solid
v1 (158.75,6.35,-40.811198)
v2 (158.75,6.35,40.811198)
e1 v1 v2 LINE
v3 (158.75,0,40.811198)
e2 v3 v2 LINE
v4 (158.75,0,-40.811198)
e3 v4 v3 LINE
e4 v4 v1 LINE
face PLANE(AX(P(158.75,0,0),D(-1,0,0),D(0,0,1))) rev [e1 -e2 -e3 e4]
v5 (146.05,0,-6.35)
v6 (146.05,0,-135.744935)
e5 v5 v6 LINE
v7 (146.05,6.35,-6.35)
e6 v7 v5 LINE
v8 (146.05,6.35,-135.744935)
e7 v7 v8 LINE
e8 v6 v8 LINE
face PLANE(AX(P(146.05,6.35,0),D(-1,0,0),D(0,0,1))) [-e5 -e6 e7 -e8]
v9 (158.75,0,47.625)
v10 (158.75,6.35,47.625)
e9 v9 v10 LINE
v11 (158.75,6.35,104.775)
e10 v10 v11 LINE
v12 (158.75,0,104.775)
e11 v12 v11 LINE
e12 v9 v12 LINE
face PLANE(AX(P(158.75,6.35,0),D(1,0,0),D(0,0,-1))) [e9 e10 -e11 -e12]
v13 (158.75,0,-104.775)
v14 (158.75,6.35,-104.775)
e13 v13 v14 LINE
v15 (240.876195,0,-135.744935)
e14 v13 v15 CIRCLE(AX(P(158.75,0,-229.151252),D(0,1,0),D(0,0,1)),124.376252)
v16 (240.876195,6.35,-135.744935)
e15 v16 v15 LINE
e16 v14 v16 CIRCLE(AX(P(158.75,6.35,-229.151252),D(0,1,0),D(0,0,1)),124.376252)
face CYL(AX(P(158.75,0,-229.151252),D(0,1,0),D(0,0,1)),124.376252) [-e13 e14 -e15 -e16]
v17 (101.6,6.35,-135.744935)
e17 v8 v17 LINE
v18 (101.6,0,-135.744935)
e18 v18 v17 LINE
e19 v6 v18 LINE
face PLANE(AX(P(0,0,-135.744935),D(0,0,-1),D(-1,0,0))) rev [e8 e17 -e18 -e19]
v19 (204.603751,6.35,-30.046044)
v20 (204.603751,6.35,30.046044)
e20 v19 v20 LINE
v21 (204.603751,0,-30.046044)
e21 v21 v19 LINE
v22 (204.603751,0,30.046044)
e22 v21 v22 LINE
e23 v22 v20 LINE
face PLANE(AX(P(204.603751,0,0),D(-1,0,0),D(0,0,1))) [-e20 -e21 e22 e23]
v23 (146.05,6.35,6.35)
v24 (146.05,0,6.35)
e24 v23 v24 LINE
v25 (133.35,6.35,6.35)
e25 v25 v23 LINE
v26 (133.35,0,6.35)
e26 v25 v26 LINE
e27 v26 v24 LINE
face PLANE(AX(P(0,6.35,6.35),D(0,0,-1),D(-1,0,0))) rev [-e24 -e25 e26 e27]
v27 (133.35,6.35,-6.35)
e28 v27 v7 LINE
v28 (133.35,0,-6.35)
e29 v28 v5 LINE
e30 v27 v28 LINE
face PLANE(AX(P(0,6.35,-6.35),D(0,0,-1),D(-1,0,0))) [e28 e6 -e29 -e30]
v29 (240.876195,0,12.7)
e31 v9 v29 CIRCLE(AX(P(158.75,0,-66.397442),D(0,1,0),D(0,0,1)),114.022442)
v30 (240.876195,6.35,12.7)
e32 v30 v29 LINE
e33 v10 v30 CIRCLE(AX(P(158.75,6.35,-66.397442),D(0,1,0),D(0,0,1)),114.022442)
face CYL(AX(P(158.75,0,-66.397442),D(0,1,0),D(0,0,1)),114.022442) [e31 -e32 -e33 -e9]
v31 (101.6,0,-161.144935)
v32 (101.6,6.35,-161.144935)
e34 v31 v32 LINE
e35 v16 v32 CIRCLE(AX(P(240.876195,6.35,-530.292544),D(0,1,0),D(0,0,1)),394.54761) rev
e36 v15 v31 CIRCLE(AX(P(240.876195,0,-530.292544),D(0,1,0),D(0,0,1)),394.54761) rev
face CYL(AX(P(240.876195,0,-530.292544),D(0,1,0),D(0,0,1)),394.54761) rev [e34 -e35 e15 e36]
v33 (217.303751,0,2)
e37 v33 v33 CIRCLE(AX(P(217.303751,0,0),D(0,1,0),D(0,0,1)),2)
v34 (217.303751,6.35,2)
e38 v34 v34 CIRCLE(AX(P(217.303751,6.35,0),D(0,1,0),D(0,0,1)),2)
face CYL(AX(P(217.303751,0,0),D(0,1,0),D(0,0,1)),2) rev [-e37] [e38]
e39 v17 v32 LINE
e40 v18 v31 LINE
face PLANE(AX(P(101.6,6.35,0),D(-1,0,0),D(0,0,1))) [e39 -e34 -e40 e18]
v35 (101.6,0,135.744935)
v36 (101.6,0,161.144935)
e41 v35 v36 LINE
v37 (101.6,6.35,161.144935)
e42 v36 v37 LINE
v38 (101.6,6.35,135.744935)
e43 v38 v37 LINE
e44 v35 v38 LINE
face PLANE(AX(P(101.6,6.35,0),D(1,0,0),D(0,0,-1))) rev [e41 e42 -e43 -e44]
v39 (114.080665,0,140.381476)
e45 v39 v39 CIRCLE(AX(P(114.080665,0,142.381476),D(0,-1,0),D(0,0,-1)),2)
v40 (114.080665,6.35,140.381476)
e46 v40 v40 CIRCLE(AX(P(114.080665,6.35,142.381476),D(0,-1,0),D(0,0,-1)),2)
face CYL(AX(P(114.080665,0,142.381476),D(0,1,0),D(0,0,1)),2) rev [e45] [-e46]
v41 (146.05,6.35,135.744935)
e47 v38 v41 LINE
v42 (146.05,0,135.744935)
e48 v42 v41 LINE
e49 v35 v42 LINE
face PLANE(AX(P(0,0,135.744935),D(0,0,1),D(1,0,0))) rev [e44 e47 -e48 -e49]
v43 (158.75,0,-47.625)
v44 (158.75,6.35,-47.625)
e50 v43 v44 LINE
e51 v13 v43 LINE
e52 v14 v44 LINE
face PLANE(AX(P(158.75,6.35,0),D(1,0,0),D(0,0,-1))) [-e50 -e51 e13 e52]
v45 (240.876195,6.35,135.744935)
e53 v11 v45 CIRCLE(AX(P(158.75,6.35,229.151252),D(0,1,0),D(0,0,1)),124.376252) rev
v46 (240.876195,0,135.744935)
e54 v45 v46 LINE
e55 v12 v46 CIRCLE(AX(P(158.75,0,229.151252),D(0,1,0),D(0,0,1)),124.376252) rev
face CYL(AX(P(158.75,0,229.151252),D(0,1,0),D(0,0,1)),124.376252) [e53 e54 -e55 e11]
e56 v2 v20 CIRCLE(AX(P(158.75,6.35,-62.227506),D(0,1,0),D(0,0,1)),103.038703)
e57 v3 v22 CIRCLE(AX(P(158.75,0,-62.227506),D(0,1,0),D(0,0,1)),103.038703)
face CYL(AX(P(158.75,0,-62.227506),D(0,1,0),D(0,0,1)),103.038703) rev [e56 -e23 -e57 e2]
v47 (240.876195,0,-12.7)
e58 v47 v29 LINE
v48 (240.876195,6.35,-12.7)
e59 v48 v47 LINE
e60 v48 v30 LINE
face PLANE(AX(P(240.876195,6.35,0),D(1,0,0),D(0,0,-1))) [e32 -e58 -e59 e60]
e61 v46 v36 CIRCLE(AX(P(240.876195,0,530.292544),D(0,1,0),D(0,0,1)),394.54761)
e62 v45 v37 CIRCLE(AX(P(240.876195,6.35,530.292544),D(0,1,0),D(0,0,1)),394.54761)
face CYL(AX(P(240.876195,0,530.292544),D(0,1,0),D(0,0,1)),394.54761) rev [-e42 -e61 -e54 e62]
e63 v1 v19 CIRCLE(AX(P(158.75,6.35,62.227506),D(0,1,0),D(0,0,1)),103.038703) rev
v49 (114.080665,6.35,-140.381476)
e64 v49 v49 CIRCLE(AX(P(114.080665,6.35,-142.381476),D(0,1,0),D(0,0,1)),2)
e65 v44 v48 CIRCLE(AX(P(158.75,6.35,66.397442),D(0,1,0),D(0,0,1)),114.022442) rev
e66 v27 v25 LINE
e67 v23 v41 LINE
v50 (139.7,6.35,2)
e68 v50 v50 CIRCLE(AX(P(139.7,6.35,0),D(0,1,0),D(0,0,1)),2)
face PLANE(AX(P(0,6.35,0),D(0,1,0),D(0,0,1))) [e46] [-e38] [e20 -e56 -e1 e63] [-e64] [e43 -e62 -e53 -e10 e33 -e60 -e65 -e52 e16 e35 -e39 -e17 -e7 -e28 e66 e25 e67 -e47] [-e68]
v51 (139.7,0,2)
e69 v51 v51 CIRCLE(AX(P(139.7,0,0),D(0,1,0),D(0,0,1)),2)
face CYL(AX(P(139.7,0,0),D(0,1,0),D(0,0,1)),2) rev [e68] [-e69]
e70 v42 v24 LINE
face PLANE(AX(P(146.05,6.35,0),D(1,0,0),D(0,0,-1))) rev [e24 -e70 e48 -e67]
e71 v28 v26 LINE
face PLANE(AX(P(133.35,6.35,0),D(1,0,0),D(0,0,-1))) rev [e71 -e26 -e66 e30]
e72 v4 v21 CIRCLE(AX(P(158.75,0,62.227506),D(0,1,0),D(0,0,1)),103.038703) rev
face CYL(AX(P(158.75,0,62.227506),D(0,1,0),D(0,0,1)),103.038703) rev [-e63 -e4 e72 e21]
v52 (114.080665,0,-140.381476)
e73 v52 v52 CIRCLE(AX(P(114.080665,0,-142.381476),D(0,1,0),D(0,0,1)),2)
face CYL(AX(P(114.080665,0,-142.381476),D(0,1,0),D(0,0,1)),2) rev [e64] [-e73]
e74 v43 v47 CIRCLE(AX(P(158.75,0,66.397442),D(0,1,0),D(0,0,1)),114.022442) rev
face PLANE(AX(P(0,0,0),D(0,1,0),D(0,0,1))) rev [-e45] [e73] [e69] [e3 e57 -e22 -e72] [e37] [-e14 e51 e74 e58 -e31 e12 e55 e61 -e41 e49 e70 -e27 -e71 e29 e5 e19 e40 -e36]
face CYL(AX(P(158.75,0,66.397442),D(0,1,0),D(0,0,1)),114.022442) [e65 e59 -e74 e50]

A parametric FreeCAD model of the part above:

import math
import FreeCAD as App
import Part
import Sketcher

V = App.Vector
Q = App.Units.Quantity


def add_polygon(sketch, points):
    """Adds a closed chain of lines whose ends are joined by coincident constraints."""
    first, n = sketch.GeometryCount, len(points)
    for a, b in zip(points, points[1:] + points[:1]):
        sketch.addGeometry(Part.LineSegment(App.Vector(*a, 0), App.Vector(*b, 0)), False)
    for i in range(n):
        sketch.addConstraint(Sketcher.Constraint("Coincident", first + i, 2, first + (i + 1) % n, 1))

doc = App.newDocument("Part")
body = doc.addObject("PartDesign::Body", "Body")
body.AllowCompound = True

sketch1 = body.newObject("Sketcher::SketchObject", "Sketch")
sketch1.AttachmentSupport = (doc.getObject("XZ_Plane"), [""])
sketch1.MapMode = "FlatFace"
sketch1.addGeometry(Part.ArcOfCircle(Part.Circle(V(0, 0, 0), V(0, 0, 1), 191), math.radians(45.44), math.radians(57.77)), False)
sketch1.addGeometry(Part.LineSegment(V(134, 136, 0), V(241, 136, 0)), False)
sketch1.addGeometry(Part.ArcOfCircle(Part.Circle(V(159, 217, 0), V(0, 0, 1), 116), math.radians(-90), math.radians(-45)), False)
sketch1.addGeometry(Part.LineSegment(V(159, 102, 0), V(159, 51, 0)), False)
sketch1.addGeometry(Part.ArcOfCircle(Part.Circle(V(159, -57, 0), V(0, 0, 1), 108), math.radians(40), math.radians(90)), False)
sketch1.addGeometry(Part.LineSegment(V(241, 13, 0), V(241, -13, 0)), False)
sketch1.addGeometry(Part.ArcOfCircle(Part.Circle(V(159, 57, 0), V(0, 0, 1), 108), math.radians(-90), math.radians(-40)), False)
sketch1.addGeometry(Part.LineSegment(V(159, -51, 0), V(159, -102, 0)), False)
sketch1.addGeometry(Part.ArcOfCircle(Part.Circle(V(159, -217, 0), V(0, 0, 1), 116), math.radians(45), math.radians(90)), False)
sketch1.addGeometry(Part.LineSegment(V(241, -136, 0), V(134, -136, 0)), False)
sketch1.addGeometry(Part.ArcOfCircle(Part.Circle(V(0, 0, 0), V(0, 0, 1), 191), math.radians(-57.77), math.radians(-45.44)), False)
sketch1.addGeometry(Part.LineSegment(V(102, -161, 0), V(102, -102, 0)), False)
sketch1.addGeometry(Part.LineSegment(V(102, -102, 0), V(146, -102, 0)), False)
sketch1.addGeometry(Part.LineSegment(V(146, -102, 0), V(146, -6, 0)), False)
sketch1.addGeometry(Part.LineSegment(V(146, -6, 0), V(133, -6, 0)), False)
sketch1.addGeometry(Part.LineSegment(V(133, -6, 0), V(133, 6, 0)), False)
sketch1.addGeometry(Part.LineSegment(V(133, 6, 0), V(146, 6, 0)), False)
sketch1.addGeometry(Part.LineSegment(V(146, 6, 0), V(146, 102, 0)), False)
sketch1.addGeometry(Part.LineSegment(V(146, 102, 0), V(102, 102, 0)), False)
sketch1.addGeometry(Part.LineSegment(V(102, 102, 0), V(102, 161, 0)), False)
sketch1.addConstraint(Sketcher.Constraint("Coincident", 0, 1, 1, 1))
sketch1.addConstraint(Sketcher.Constraint("Coincident", 1, 2, 2, 2))
sketch1.addConstraint(Sketcher.Constraint("Coincident", 2, 1, 3, 1))
sketch1.addConstraint(Sketcher.Constraint("Coincident", 3, 2, 4, 2))
sketch1.addConstraint(Sketcher.Constraint("Coincident", 4, 1, 5, 1))
sketch1.addConstraint(Sketcher.Constraint("Coincident", 5, 2, 6, 2))
sketch1.addConstraint(Sketcher.Constraint("Coincident", 6, 1, 7, 1))
sketch1.addConstraint(Sketcher.Constraint("Coincident", 7, 2, 8, 2))
sketch1.addConstraint(Sketcher.Constraint("Coincident", 8, 1, 9, 1))
sketch1.addConstraint(Sketcher.Constraint("Coincident", 9, 2, 10, 2))
sketch1.addConstraint(Sketcher.Constraint("Coincident", 10, 1, 11, 1))
sketch1.addConstraint(Sketcher.Constraint("Coincident", 11, 2, 12, 1))
sketch1.addConstraint(Sketcher.Constraint("Coincident", 12, 2, 13, 1))
sketch1.addConstraint(Sketcher.Constraint("Coincident", 13, 2, 14, 1))
sketch1.addConstraint(Sketcher.Constraint("Coincident", 14, 2, 15, 1))
sketch1.addConstraint(Sketcher.Constraint("Coincident", 15, 2, 16, 1))
sketch1.addConstraint(Sketcher.Constraint("Coincident", 16, 2, 17, 1))
sketch1.addConstraint(Sketcher.Constraint("Coincident", 17, 2, 18, 1))
sketch1.addConstraint(Sketcher.Constraint("Coincident", 18, 2, 19, 1))
sketch1.addConstraint(Sketcher.Constraint("Coincident", 19, 2, 0, 2))
sketch1.addConstraint(Sketcher.Constraint("Horizontal", 1))
sketch1.addConstraint(Sketcher.Constraint("Vertical", 3))
sketch1.addConstraint(Sketcher.Constraint("Vertical", 5))
sketch1.addConstraint(Sketcher.Constraint("Vertical", 7))
sketch1.addConstraint(Sketcher.Constraint("Horizontal", 9))
sketch1.addConstraint(Sketcher.Constraint("Vertical", 11))
sketch1.addConstraint(Sketcher.Constraint("Horizontal", 12))
sketch1.addConstraint(Sketcher.Constraint("Vertical", 13))
sketch1.addConstraint(Sketcher.Constraint("Horizontal", 14))
sketch1.addConstraint(Sketcher.Constraint("Vertical", 15))
sketch1.addConstraint(Sketcher.Constraint("Horizontal", 16))
sketch1.addConstraint(Sketcher.Constraint("Vertical", 17))
sketch1.addConstraint(Sketcher.Constraint("Horizontal", 18))
sketch1.addConstraint(Sketcher.Constraint("Vertical", 19))
sketch1.addConstraint(Sketcher.Constraint("Coincident", 0, 3, -1, 1))
sketch1.addConstraint(Sketcher.Constraint("Coincident", 10, 3, -1, 1))
sketch1.addConstraint(Sketcher.Constraint("Equal", 4, 6))
sketch1.addConstraint(Sketcher.Constraint("Equal", 2, 8))
sketch1.addConstraint(Sketcher.Constraint("Equal", 0, 10))
sketch1.addConstraint(Sketcher.Constraint("Symmetric", 4, 3, 6, 3, -1))
sketch1.addConstraint(Sketcher.Constraint("Symmetric", 2, 3, 8, 3, -1))
sketch1.addConstraint(Sketcher.Constraint("Symmetric", 13, 2, 16, 2, -1))
sketch1.addConstraint(Sketcher.Constraint("Symmetric", 11, 2, 18, 2, -1))
sketch1.addConstraint(Sketcher.Constraint("Horizontal", 7, 2, 11, 2))
sketch1.addConstraint(Sketcher.Constraint("Vertical", 2, 3, 4, 3))
sketch1.addConstraint(Sketcher.Constraint("Vertical", 8, 3, 2, 1))
sketch1.addConstraint(Sketcher.Constraint("Vertical", 1, 2, 4, 1))
sketch1.addConstraint(Sketcher.Constraint("Vertical", 3, 2, 6, 1))
sketch1.addConstraint(Sketcher.Constraint("Vertical", 5, 2, 8, 1))
sketch1.addConstraint(Sketcher.Constraint("Equal", 16, 15))
sketch1.addConstraint(Sketcher.Constraint("Radius", 0, Q("7.5 in")))
sketch1.addConstraint(Sketcher.Constraint("DistanceY", 3, 2, 3, 1, Q("2 in")))
sketch1.addConstraint(Sketcher.Constraint("DistanceY", 5, 2, 5, 1, Q("1 in")))
sketch1.addConstraint(Sketcher.Constraint("DistanceX", 14, 2, 14, 1, Q("0.5 in")))
sketch1.addConstraint(Sketcher.Constraint("DistanceY", -1, 1, 2, 1, Q("4 in")))
sketch1.addConstraint(Sketcher.Constraint("DistanceX", -1, 1, 10, 1, Q("4 in")))
sketch1.addConstraint(Sketcher.Constraint("DistanceY", 10, 1, 9, 2, Q("1 in")))
sketch1.addConstraint(Sketcher.Constraint("DistanceX", 14, 2, 6, 1, Q("1 in")))
sketch1.addConstraint(Sketcher.Constraint("DistanceX", 12, 1, 12, 2, Q("1.75 in")))
sketch1.addConstraint(Sketcher.Constraint("Radius", 2, 115.83839))
pad1 = body.newObject("PartDesign::Pad", "Pad")
pad1.Profile = sketch1
pad1.Length = Q("0.25 in")
pad1.Reversed = True

sketch2 = body.newObject("Sketcher::SketchObject", "Sketch001")
sketch2.AttachmentSupport = (doc.getObject("XZ_Plane"), [""])
sketch2.MapMode = "FlatFace"
sketch2.AttachmentOffset = App.Placement(V(0, 0, -0.25 * 25.4), App.Rotation())
sketch2.addGeometry(Part.Circle(V(139.7, 0, 0), V(0, 0, 1), 2), False)
sketch2.addGeometry(Part.Circle(V(114.1, -142.4, 0), V(0, 0, 1), 2), False)
sketch2.addGeometry(Part.Circle(V(114.1, 142.4, 0), V(0, 0, 1), 2), False)
sketch2.addConstraint(Sketcher.Constraint("Equal", 0, 1))
sketch2.addConstraint(Sketcher.Constraint("Equal", 1, 2))
sketch2.addConstraint(Sketcher.Constraint("Symmetric", 1, 3, 2, 3, -1))
sketch2.addConstraint(Sketcher.Constraint("PointOnObject", 0, 3, -1))
sketch2.addConstraint(Sketcher.Constraint("DistanceX", -1, 1, 0, 3, Q("5.5 in")))
sketch2.addConstraint(Sketcher.Constraint("Diameter", 0, 4.0))
sketch2.addConstraint(Sketcher.Constraint("DistanceY", 1, 3, 2, 3, 284.762952))
sketch2.addConstraint(Sketcher.Constraint("DistanceX", -1, 1, 1, 3, 114.080665))
pocket1 = body.newObject("PartDesign::Pocket", "Pocket")
pocket1.Profile = sketch2
pocket1.Length = Q("0.25 in")
pocket1.Reversed = True

sketch3 = body.newObject("Sketcher::SketchObject", "Sketch002")
sketch3.AttachmentSupport = (doc.getObject("XZ_Plane"), [""])
sketch3.MapMode = "FlatFace"
sketch3.AttachmentOffset = App.Placement(V(0, 0, -0.25 * 25.4), App.Rotation())
add_polygon(sketch3, [(102, -136), (102, -102), (146, -102), (146, -136)])
add_polygon(sketch3, [(102, 102), (102, 136), (146, 136), (146, 102)])
sketch3.addConstraint(Sketcher.Constraint("Vertical", 0))
sketch3.addConstraint(Sketcher.Constraint("Horizontal", 1))
sketch3.addConstraint(Sketcher.Constraint("Vertical", 2))
sketch3.addConstraint(Sketcher.Constraint("Horizontal", 3))
sketch3.addConstraint(Sketcher.Constraint("Vertical", 4))
sketch3.addConstraint(Sketcher.Constraint("Horizontal", 5))
sketch3.addConstraint(Sketcher.Constraint("Vertical", 6))
sketch3.addConstraint(Sketcher.Constraint("Horizontal", 7))
sketch3.addConstraint(Sketcher.Constraint("Symmetric", 3, 2, 4, 2, -1))
sketch3.addConstraint(Sketcher.Constraint("Symmetric", 1, 2, 6, 2, -1))
sketch3.addConstraint(Sketcher.Constraint("DistanceX", -1, 1, 0, 2, Q("4 in")))
sketch3.addConstraint(Sketcher.Constraint("DistanceY", 0, 2, -1, 1, Q("4 in")))
sketch3.addConstraint(Sketcher.Constraint("DistanceX", 1, 1, 1, 2, Q("1.75 in")))
sketch3.addConstraint(Sketcher.Constraint("DistanceY", 0, 1, 0, 2, 34.144935))
pocket2 = body.newObject("PartDesign::Pocket", "Pocket001")
pocket2.Profile = sketch3
pocket2.Length = Q("0.25 in")
pocket2.Reversed = True

sketch4 = body.newObject("Sketcher::SketchObject", "Sketch003")
sketch4.AttachmentSupport = (doc.getObject("XZ_Plane"), [""])
sketch4.MapMode = "FlatFace"
sketch4.AttachmentOffset = App.Placement(V(0, 0, -0.25 * 25.4), App.Rotation())
sketch4.addGeometry(Part.ArcOfCircle(Part.Circle(V(241, -530, 0), V(0, 0, 1), 395), math.radians(90), math.radians(111)), False)
sketch4.addGeometry(Part.LineSegment(V(102, -161, 0), V(134, -136, 0)), False)
sketch4.addGeometry(Part.LineSegment(V(134, -136, 0), V(241, -136, 0)), False)
sketch4.addGeometry(Part.ArcOfCircle(Part.Circle(V(241, 530, 0), V(0, 0, 1), 395), math.radians(-111), math.radians(-90)), False)
sketch4.addGeometry(Part.LineSegment(V(241, 136, 0), V(134, 136, 0)), False)
sketch4.addGeometry(Part.LineSegment(V(134, 136, 0), V(102, 161, 0)), False)
sketch4.addConstraint(Sketcher.Constraint("Coincident", 0, 2, 1, 1))
sketch4.addConstraint(Sketcher.Constraint("Coincident", 1, 2, 2, 1))
sketch4.addConstraint(Sketcher.Constraint("Tangent", 2, 2, 0, 1))
sketch4.addConstraint(Sketcher.Constraint("Tangent", 3, 2, 4, 1))
sketch4.addConstraint(Sketcher.Constraint("Coincident", 4, 2, 5, 1))
sketch4.addConstraint(Sketcher.Constraint("Coincident", 5, 2, 3, 1))
sketch4.addConstraint(Sketcher.Constraint("Horizontal", 2))
sketch4.addConstraint(Sketcher.Constraint("Horizontal", 4))
sketch4.addConstraint(Sketcher.Constraint("Equal", 0, 3))
sketch4.addConstraint(Sketcher.Constraint("Symmetric", 0, 3, 3, 3, -1))
sketch4.addConstraint(Sketcher.Constraint("Vertical", 1, 2, 4, 2))
sketch4.addConstraint(Sketcher.Constraint("Vertical", 0, 2, 5, 2))
sketch4.addConstraint(Sketcher.Constraint("DistanceX", -1, 1, 5, 2, Q("4 in")))
sketch4.addConstraint(Sketcher.Constraint("DistanceY", 4, 2, 5, 2, Q("1 in")))
sketch4.addConstraint(Sketcher.Constraint("Radius", 0, 394.547609))
sketch4.addConstraint(Sketcher.Constraint("DistanceX", 2, 1, 2, 2, 107.221556))
sketch4.addConstraint(Sketcher.Constraint("DistanceY", 0, 3, 3, 3, 1060.585089))
pad2 = body.newObject("PartDesign::Pad", "Pad001")
pad2.Profile = sketch4
pad2.Length = Q("0.25 in")

sketch5 = body.newObject("Sketcher::SketchObject", "Sketch004")
sketch5.AttachmentSupport = (doc.getObject("XZ_Plane"), [""])
sketch5.MapMode = "FlatFace"
sketch5.AttachmentOffset = App.Placement(V(0, 0, -0.25 * 25.4), App.Rotation())
sketch5.addGeometry(Part.ArcOfCircle(Part.Circle(V(159, 62, 0), V(0, 0, 1), 103), math.radians(-90), math.radians(-64)), False)
sketch5.addGeometry(Part.LineSegment(V(159, -41, 0), V(159, 41, 0)), False)
sketch5.addGeometry(Part.ArcOfCircle(Part.Circle(V(159, -62, 0), V(0, 0, 1), 103), math.radians(64), math.radians(90)), False)
sketch5.addGeometry(Part.LineSegment(V(205, 30, 0), V(205, -30, 0)), False)
sketch5.addConstraint(Sketcher.Constraint("Coincident", 0, 1, 1, 1))
sketch5.addConstraint(Sketcher.Constraint("Coincident", 1, 2, 2, 2))
sketch5.addConstraint(Sketcher.Constraint("Coincident", 2, 1, 3, 1))
sketch5.addConstraint(Sketcher.Constraint("Coincident", 3, 2, 0, 2))
sketch5.addConstraint(Sketcher.Constraint("Vertical", 1))
sketch5.addConstraint(Sketcher.Constraint("Vertical", 3))
sketch5.addConstraint(Sketcher.Constraint("Equal", 0, 2))
sketch5.addConstraint(Sketcher.Constraint("Symmetric", 0, 3, 2, 3, -1))
sketch5.addConstraint(Sketcher.Constraint("Vertical", 2, 3, 0, 1))
sketch5.addConstraint(Sketcher.Constraint("DistanceX", -1, 1, 0, 3, Q("6.25 in")))
sketch5.addConstraint(Sketcher.Constraint("Radius", 0, 103.038703))
sketch5.addConstraint(Sketcher.Constraint("DistanceY", 1, 1, 1, 2, 81.622396))
sketch5.addConstraint(Sketcher.Constraint("DistanceY", 3, 2, 3, 1, 60.092088))
pocket3 = body.newObject("PartDesign::Pocket", "Pocket002")
pocket3.Profile = sketch5
pocket3.Length = Q("0.25 in")
pocket3.Reversed = True

sketch6 = body.newObject("Sketcher::SketchObject", "Sketch005")
sketch6.AttachmentSupport = (doc.getObject("XZ_Plane"), [""])
sketch6.MapMode = "FlatFace"
sketch6.AttachmentOffset = App.Placement(V(0, 0, -0.25 * 25.4), App.Rotation())
sketch6.addGeometry(Part.ArcOfCircle(Part.Circle(V(158.8, -229.2, 0), V(0, 0, 1), 124.4), math.radians(49), math.radians(90)), False)
sketch6.addGeometry(Part.LineSegment(V(158.8, -104.8, 0), V(158.8, -101.6, 0)), False)
sketch6.addGeometry(Part.ArcOfCircle(Part.Circle(V(158.7, -217.4, 0), V(0, 0, 1), 115.8), math.radians(45), math.radians(90)), False)
sketch6.addGeometry(Part.LineSegment(V(158.8, -50.8, 0), V(158.8, -47.6, 0)), False)
sketch6.addGeometry(Part.ArcOfCircle(Part.Circle(V(158.8, 66.4, 0), V(0, 0, 1), 114), math.radians(-90), math.radians(-44)), False)
sketch6.addGeometry(Part.ArcOfCircle(Part.Circle(V(158.8, 56.8, 0), V(0, 0, 1), 107.6), math.radians(-90), math.radians(-40)), False)
sketch6.addGeometry(Part.ArcOfCircle(Part.Circle(V(158.8, -66.4, 0), V(0, 0, 1), 114), math.radians(44), math.radians(90)), False)
sketch6.addGeometry(Part.LineSegment(V(158.8, 47.6, 0), V(158.8, 50.8, 0)), False)
sketch6.addGeometry(Part.ArcOfCircle(Part.Circle(V(158.8, -56.8, 0), V(0, 0, 1), 107.6), math.radians(40), math.radians(90)), False)
sketch6.addGeometry(Part.LineSegment(V(158.8, 101.6, 0), V(158.8, 104.8, 0)), False)
sketch6.addGeometry(Part.ArcOfCircle(Part.Circle(V(158.8, 229.2, 0), V(0, 0, 1), 124.4), math.radians(-90), math.radians(-49)), False)
sketch6.addGeometry(Part.ArcOfCircle(Part.Circle(V(158.7, 217.4, 0), V(0, 0, 1), 115.8), math.radians(-90), math.radians(-45)), False)
sketch6.addConstraint(Sketcher.Constraint("Coincident", 0, 2, 1, 1))
sketch6.addConstraint(Sketcher.Constraint("Coincident", 1, 2, 2, 2))
sketch6.addConstraint(Sketcher.Constraint("Coincident", 2, 1, 0, 1))
sketch6.addConstraint(Sketcher.Constraint("Coincident", 3, 2, 4, 1))
sketch6.addConstraint(Sketcher.Constraint("Coincident", 4, 2, 5, 2))
sketch6.addConstraint(Sketcher.Constraint("Coincident", 5, 1, 3, 1))
sketch6.addConstraint(Sketcher.Constraint("Coincident", 6, 2, 7, 1))
sketch6.addConstraint(Sketcher.Constraint("Coincident", 7, 2, 8, 2))
sketch6.addConstraint(Sketcher.Constraint("Coincident", 8, 1, 6, 1))
sketch6.addConstraint(Sketcher.Constraint("Coincident", 9, 2, 10, 1))
sketch6.addConstraint(Sketcher.Constraint("Coincident", 10, 2, 11, 2))
sketch6.addConstraint(Sketcher.Constraint("Coincident", 11, 1, 9, 1))
sketch6.addConstraint(Sketcher.Constraint("Vertical", 1))
sketch6.addConstraint(Sketcher.Constraint("Vertical", 3))
sketch6.addConstraint(Sketcher.Constraint("Vertical", 7))
sketch6.addConstraint(Sketcher.Constraint("Vertical", 9))
sketch6.addConstraint(Sketcher.Constraint("Equal", 4, 6))
sketch6.addConstraint(Sketcher.Constraint("Equal", 5, 8))
sketch6.addConstraint(Sketcher.Constraint("Equal", 0, 10))
sketch6.addConstraint(Sketcher.Constraint("Equal", 2, 11))
sketch6.addConstraint(Sketcher.Constraint("Symmetric", 4, 3, 6, 3, -1))
sketch6.addConstraint(Sketcher.Constraint("Symmetric", 5, 3, 8, 3, -1))
sketch6.addConstraint(Sketcher.Constraint("Symmetric", 0, 3, 10, 3, -1))
sketch6.addConstraint(Sketcher.Constraint("Symmetric", 2, 3, 11, 3, -1))
sketch6.addConstraint(Sketcher.Constraint("Vertical", 0, 3, 2, 3))
sketch6.addConstraint(Sketcher.Constraint("Vertical", 2, 3, 4, 3))
sketch6.addConstraint(Sketcher.Constraint("Vertical", 4, 3, 5, 3))
sketch6.addConstraint(Sketcher.Constraint("Vertical", 11, 3, 0, 2))
sketch6.addConstraint(Sketcher.Constraint("Vertical", 1, 2, 3, 2))
sketch6.addConstraint(Sketcher.Constraint("Vertical", 2, 1, 4, 2))
sketch6.addConstraint(Sketcher.Constraint("Vertical", 5, 1, 6, 2))
sketch6.addConstraint(Sketcher.Constraint("Vertical", 7, 2, 9, 2))
sketch6.addConstraint(Sketcher.Constraint("Equal", 1, 3))
sketch6.addConstraint(Sketcher.Constraint("DistanceY", 1, 2, -1, 1, Q("4 in")))
sketch6.addConstraint(Sketcher.Constraint("DistanceY", 5, 1, -1, 1, Q("2 in")))
sketch6.addConstraint(Sketcher.Constraint("DistanceY", 4, 2, 8, 1, Q("1 in")))
sketch6.addConstraint(Sketcher.Constraint("DistanceY", 1, 1, 1, 2, Q("0.125 in")))
sketch6.addConstraint(Sketcher.Constraint("DistanceX", -1, 1, 0, 3, Q("6.25 in")))
sketch6.addConstraint(Sketcher.Constraint("Radius", 0, 124.376252))
sketch6.addConstraint(Sketcher.Constraint("Radius", 2, 115.83839))
pocket4 = body.newObject("PartDesign::Pocket", "Pocket003")
pocket4.Profile = sketch6
pocket4.Length = Q("0.25 in")
pocket4.Reversed = True

sketch7 = body.newObject("Sketcher::SketchObject", "Sketch006")
sketch7.AttachmentSupport = (doc.getObject("XZ_Plane"), [""])
sketch7.MapMode = "FlatFace"
sketch7.AttachmentOffset = App.Placement(V(0, 0, -0.25 * 25.4), App.Rotation())
sketch7.addGeometry(Part.Circle(V(217.3, 0, 0), V(0, 0, 1), 2), False)
sketch7.addConstraint(Sketcher.Constraint("PointOnObject", 0, 3, -1))
sketch7.addConstraint(Sketcher.Constraint("Diameter", 0, 4.0))
sketch7.addConstraint(Sketcher.Constraint("DistanceX", -1, 1, 0, 3, 217.303751))
pocket5 = body.newObject("PartDesign::Pocket", "Pocket004")
pocket5.Profile = sketch7
pocket5.Length = Q("0.25 in")
pocket5.Reversed = True

doc.recompute()
